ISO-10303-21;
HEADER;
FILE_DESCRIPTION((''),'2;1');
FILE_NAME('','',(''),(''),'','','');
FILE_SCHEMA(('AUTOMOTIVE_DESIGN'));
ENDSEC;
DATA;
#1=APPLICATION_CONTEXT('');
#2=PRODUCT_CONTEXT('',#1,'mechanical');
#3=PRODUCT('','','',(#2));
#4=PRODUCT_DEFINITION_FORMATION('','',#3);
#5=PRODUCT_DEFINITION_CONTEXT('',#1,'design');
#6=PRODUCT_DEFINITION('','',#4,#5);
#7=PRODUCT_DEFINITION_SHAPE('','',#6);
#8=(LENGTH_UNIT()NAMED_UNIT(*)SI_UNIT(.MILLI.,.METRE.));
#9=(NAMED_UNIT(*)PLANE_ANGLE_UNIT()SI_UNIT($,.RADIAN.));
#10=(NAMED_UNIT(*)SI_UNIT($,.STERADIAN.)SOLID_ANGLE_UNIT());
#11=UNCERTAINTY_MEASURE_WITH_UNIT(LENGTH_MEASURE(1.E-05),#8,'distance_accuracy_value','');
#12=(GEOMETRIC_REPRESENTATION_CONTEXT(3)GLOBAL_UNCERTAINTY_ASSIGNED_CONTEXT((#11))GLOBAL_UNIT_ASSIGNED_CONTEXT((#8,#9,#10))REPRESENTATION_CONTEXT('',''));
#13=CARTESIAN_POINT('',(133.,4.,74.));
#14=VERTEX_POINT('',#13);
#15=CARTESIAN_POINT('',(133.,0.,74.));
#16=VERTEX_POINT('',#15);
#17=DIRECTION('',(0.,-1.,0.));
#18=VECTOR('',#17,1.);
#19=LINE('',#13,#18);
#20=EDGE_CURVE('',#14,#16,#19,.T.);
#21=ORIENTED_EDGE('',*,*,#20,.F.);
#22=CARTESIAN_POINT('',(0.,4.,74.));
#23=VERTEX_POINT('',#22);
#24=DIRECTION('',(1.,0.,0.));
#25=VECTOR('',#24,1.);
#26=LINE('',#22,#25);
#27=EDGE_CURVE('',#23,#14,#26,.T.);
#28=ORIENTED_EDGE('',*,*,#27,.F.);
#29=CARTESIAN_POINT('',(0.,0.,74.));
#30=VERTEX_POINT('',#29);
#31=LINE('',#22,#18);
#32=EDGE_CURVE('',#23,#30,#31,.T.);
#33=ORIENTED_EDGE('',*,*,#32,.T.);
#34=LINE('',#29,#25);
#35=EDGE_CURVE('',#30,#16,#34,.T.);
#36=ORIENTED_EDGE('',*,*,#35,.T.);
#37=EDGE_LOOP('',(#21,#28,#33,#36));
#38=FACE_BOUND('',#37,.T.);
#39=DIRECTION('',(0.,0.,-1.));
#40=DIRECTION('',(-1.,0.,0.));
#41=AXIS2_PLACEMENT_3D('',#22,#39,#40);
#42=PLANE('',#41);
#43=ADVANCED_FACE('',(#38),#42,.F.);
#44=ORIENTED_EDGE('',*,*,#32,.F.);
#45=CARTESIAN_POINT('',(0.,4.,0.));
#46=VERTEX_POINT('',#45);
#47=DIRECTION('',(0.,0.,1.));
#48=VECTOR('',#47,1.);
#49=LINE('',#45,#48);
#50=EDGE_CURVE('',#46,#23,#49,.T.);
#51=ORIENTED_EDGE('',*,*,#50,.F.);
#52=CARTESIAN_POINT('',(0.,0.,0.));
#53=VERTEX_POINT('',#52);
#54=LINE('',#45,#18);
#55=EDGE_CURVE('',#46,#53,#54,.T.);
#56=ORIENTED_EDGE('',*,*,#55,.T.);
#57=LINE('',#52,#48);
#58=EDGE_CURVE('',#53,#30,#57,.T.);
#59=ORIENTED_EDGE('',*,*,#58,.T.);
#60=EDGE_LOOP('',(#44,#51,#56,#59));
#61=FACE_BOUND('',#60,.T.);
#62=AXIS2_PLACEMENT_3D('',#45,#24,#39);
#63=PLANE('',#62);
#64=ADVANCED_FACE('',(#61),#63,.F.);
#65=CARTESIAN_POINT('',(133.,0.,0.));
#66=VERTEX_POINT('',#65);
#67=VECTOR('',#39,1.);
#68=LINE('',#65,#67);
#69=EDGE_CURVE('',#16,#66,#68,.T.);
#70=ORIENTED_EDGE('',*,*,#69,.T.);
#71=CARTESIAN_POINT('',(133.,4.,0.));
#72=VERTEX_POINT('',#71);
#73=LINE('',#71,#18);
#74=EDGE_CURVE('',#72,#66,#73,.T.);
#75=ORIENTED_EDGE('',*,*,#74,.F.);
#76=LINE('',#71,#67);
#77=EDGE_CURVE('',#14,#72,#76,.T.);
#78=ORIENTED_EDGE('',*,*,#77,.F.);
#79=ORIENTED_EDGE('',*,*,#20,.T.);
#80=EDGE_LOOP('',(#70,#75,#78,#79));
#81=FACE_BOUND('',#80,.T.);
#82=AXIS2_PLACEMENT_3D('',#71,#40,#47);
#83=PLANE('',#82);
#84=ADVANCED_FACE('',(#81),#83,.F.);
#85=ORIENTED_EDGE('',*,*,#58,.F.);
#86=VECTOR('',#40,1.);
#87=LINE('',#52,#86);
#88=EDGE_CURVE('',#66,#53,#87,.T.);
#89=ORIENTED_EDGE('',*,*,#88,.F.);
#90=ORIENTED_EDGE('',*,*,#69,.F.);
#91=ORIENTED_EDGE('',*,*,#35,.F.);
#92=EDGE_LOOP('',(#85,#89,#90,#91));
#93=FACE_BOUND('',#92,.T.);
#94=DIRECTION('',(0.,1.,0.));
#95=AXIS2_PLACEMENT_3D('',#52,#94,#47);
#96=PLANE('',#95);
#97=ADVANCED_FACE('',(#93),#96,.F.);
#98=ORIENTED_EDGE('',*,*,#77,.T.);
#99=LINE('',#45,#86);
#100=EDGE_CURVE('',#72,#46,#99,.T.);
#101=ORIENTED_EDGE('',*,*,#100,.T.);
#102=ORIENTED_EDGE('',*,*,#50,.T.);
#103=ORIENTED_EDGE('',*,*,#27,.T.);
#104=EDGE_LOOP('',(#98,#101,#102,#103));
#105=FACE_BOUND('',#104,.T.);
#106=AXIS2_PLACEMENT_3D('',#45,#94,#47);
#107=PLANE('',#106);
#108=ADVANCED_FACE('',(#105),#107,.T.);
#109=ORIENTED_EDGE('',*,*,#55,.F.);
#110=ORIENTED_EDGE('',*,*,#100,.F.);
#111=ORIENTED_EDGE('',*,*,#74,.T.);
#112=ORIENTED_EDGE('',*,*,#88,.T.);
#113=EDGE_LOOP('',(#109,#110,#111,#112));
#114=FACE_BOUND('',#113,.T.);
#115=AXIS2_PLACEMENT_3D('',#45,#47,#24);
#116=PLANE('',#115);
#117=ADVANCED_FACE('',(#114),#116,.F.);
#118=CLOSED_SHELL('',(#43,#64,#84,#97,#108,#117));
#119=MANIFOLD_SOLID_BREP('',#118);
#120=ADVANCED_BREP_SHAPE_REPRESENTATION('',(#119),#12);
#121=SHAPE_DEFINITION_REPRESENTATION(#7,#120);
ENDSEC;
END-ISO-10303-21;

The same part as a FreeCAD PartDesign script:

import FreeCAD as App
import Part
import Sketcher

V = App.Vector

doc = App.newDocument("Part")
params = doc.addObject("Spreadsheet::Sheet", "Params")
for row, (alias, value) in enumerate([
    ("sketch1_width", "133 mm"),
    ("sketch1_height", "74 mm"),
    ("pad1_length", "4 mm"),
], start=1):
    params.set(f"A{row}", alias)
    params.set(f"B{row}", "=" + value)
    params.setAlias(f"B{row}", alias)

body = doc.addObject("PartDesign::Body", "Body")

# Sketch on XZ plane
sketch1 = doc.addObject("Sketcher::SketchObject", "Sketch")
body.addObject(sketch1)
sketch1.AttachmentSupport = (doc.XZ_Plane, [""])
sketch1.MapMode = "FlatFace"
sketch1.addGeometry(Part.LineSegment(V(0, 0, 0), V(0, 74, 0)), False)
sketch1.addGeometry(Part.LineSegment(V(0, 74, 0), V(133, 74, 0)), False)
sketch1.addGeometry(Part.LineSegment(V(133, 74, 0), V(133, 0, 0)), False)
sketch1.addGeometry(Part.LineSegment(V(133, 0, 0), V(0, 0, 0)), False)
sketch1.addConstraint(Sketcher.Constraint("Coincident", 0, 2, 1, 1))
sketch1.addConstraint(Sketcher.Constraint("Coincident", 1, 2, 2, 1))
sketch1.addConstraint(Sketcher.Constraint("Coincident", 2, 2, 3, 1))
sketch1.addConstraint(Sketcher.Constraint("Coincident", 3, 2, 0, 1))
sketch1.addConstraint(Sketcher.Constraint("Vertical", 0))
sketch1.addConstraint(Sketcher.Constraint("Horizontal", 1))
sketch1.addConstraint(Sketcher.Constraint("Vertical", 2))
sketch1.addConstraint(Sketcher.Constraint("Horizontal", 3))
sketch1.addConstraint(Sketcher.Constraint("Coincident", 3, 2, -1, 1))
sketch1.addConstraint(Sketcher.Constraint("DistanceX", 1, 1, 1, 2, 133.0))
sketch1.addConstraint(Sketcher.Constraint("DistanceY", 0, 1, 0, 2, 74.0))
sketch1.setExpression("Constraints[9]", "Params.sketch1_width")
sketch1.setExpression("Constraints[10]", "Params.sketch1_height")
pad1 = doc.addObject("PartDesign::Pad", "Pad")
body.addObject(pad1)
pad1.Profile = sketch1
pad1.setExpression("Length", "Params.pad1_length")
pad1.Reversed = True

doc.recompute()
